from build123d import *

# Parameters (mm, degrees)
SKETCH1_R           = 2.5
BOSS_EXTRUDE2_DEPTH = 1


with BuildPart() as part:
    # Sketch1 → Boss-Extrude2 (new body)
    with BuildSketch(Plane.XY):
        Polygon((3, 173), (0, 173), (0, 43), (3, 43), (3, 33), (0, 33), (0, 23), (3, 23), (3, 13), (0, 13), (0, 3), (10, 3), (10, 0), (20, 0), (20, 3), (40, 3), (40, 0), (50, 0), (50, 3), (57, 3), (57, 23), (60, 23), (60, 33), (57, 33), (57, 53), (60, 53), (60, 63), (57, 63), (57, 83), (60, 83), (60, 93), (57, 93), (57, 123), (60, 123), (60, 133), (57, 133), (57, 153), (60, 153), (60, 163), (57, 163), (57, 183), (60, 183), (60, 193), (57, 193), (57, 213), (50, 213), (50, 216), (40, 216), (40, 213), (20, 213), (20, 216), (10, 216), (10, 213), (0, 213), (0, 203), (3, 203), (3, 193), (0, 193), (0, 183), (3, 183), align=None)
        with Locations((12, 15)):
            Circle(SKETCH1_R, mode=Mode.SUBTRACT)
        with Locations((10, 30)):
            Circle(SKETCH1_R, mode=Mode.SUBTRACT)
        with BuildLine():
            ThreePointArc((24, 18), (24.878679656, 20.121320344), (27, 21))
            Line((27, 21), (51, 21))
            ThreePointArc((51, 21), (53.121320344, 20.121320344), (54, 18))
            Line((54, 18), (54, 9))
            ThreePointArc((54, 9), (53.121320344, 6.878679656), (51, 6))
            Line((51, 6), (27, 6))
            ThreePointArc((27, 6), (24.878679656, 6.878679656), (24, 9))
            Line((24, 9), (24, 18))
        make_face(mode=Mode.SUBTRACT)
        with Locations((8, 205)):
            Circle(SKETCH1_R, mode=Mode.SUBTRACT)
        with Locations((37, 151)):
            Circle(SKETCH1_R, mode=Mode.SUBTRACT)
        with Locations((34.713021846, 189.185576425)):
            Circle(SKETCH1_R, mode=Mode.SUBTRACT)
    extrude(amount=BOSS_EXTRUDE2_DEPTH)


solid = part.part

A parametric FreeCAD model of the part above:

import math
import FreeCAD as App
import Part
import Sketcher
Q = App.Units.Quantity

doc = App.newDocument("Part")
params = doc.addObject("Spreadsheet::Sheet", "Params")
for row, (alias, value) in enumerate([
    ("sketch1_diameter", "5 mm"),
    ("sketch1_radius", "3 mm"),
    ("sketch1_width", "3 mm"),
    ("sketch1_width2", "10 mm"),
    ("sketch1_width3", "7 mm"),
    ("pad1_length", "1 mm"),
], start=1):
    params.set(f"A{row}", alias)
    params.set(f"B{row}", "=" + value)
    params.setAlias(f"B{row}", alias)

body = doc.addObject("PartDesign::Body", "Body")

# Sketch on XY plane
sketch1 = body.newObject("Sketcher::SketchObject", "Sketch")
sketch1.AttachmentSupport = (doc.getObject("XY_Plane"), [""])
sketch1.MapMode = "FlatFace"
sketch1.addGeometry([
    Part.LineSegment(App.Vector(3, 173, 0), App.Vector(0, 173, 0)),  # 0
    Part.LineSegment(App.Vector(0, 173, 0), App.Vector(0, 43, 0)),  # 1
    Part.LineSegment(App.Vector(0, 43, 0), App.Vector(3, 43, 0)),  # 2
    Part.LineSegment(App.Vector(3, 43, 0), App.Vector(3, 33, 0)),  # 3
    Part.LineSegment(App.Vector(3, 33, 0), App.Vector(0, 33, 0)),  # 4
    Part.LineSegment(App.Vector(0, 33, 0), App.Vector(0, 23, 0)),  # 5
    Part.LineSegment(App.Vector(0, 23, 0), App.Vector(3, 23, 0)),  # 6
    Part.LineSegment(App.Vector(3, 23, 0), App.Vector(3, 13, 0)),  # 7
    Part.LineSegment(App.Vector(3, 13, 0), App.Vector(0, 13, 0)),  # 8
    Part.LineSegment(App.Vector(0, 13, 0), App.Vector(0, 3, 0)),  # 9
    Part.LineSegment(App.Vector(0, 3, 0), App.Vector(10, 3, 0)),  # 10
    Part.LineSegment(App.Vector(10, 3, 0), App.Vector(10, 0, 0)),  # 11
    Part.LineSegment(App.Vector(10, 0, 0), App.Vector(20, 0, 0)),  # 12
    Part.LineSegment(App.Vector(20, 0, 0), App.Vector(20, 3, 0)),  # 13
    Part.LineSegment(App.Vector(20, 3, 0), App.Vector(40, 3, 0)),  # 14
    Part.LineSegment(App.Vector(40, 3, 0), App.Vector(40, 0, 0)),  # 15
    Part.LineSegment(App.Vector(40, 0, 0), App.Vector(50, 0, 0)),  # 16
    Part.LineSegment(App.Vector(50, 0, 0), App.Vector(50, 3, 0)),  # 17
    Part.LineSegment(App.Vector(50, 3, 0), App.Vector(57, 3, 0)),  # 18
    Part.LineSegment(App.Vector(57, 3, 0), App.Vector(57, 23, 0)),  # 19
    Part.LineSegment(App.Vector(57, 23, 0), App.Vector(60, 23, 0)),  # 20
    Part.LineSegment(App.Vector(60, 23, 0), App.Vector(60, 33, 0)),  # 21
    Part.LineSegment(App.Vector(60, 33, 0), App.Vector(57, 33, 0)),  # 22
    Part.LineSegment(App.Vector(57, 33, 0), App.Vector(57, 53, 0)),  # 23
    Part.LineSegment(App.Vector(57, 53, 0), App.Vector(60, 53, 0)),  # 24
    Part.LineSegment(App.Vector(60, 53, 0), App.Vector(60, 63, 0)),  # 25
    Part.LineSegment(App.Vector(60, 63, 0), App.Vector(57, 63, 0)),  # 26
    Part.LineSegment(App.Vector(57, 63, 0), App.Vector(57, 83, 0)),  # 27
    Part.LineSegment(App.Vector(57, 83, 0), App.Vector(60, 83, 0)),  # 28
    Part.LineSegment(App.Vector(60, 83, 0), App.Vector(60, 93, 0)),  # 29
    Part.LineSegment(App.Vector(60, 93, 0), App.Vector(57, 93, 0)),  # 30
    Part.LineSegment(App.Vector(57, 93, 0), App.Vector(57, 123, 0)),  # 31
    Part.LineSegment(App.Vector(57, 123, 0), App.Vector(60, 123, 0)),  # 32
    Part.LineSegment(App.Vector(60, 123, 0), App.Vector(60, 133, 0)),  # 33
    Part.LineSegment(App.Vector(60, 133, 0), App.Vector(57, 133, 0)),  # 34
    Part.LineSegment(App.Vector(57, 133, 0), App.Vector(57, 153, 0)),  # 35
    Part.LineSegment(App.Vector(57, 153, 0), App.Vector(60, 153, 0)),  # 36
    Part.LineSegment(App.Vector(60, 153, 0), App.Vector(60, 163, 0)),  # 37
    Part.LineSegment(App.Vector(60, 163, 0), App.Vector(57, 163, 0)),  # 38
    Part.LineSegment(App.Vector(57, 163, 0), App.Vector(57, 183, 0)),  # 39
    Part.LineSegment(App.Vector(57, 183, 0), App.Vector(60, 183, 0)),  # 40
    Part.LineSegment(App.Vector(60, 183, 0), App.Vector(60, 193, 0)),  # 41
    Part.LineSegment(App.Vector(60, 193, 0), App.Vector(57, 193, 0)),  # 42
    Part.LineSegment(App.Vector(57, 193, 0), App.Vector(57, 213, 0)),  # 43
    Part.LineSegment(App.Vector(57, 213, 0), App.Vector(50, 213, 0)),  # 44
    Part.LineSegment(App.Vector(50, 213, 0), App.Vector(50, 216, 0)),  # 45
    Part.LineSegment(App.Vector(50, 216, 0), App.Vector(40, 216, 0)),  # 46
    Part.LineSegment(App.Vector(40, 216, 0), App.Vector(40, 213, 0)),  # 47
    Part.LineSegment(App.Vector(40, 213, 0), App.Vector(20, 213, 0)),  # 48
    Part.LineSegment(App.Vector(20, 213, 0), App.Vector(20, 216, 0)),  # 49
    Part.LineSegment(App.Vector(20, 216, 0), App.Vector(10, 216, 0)),  # 50
    Part.LineSegment(App.Vector(10, 216, 0), App.Vector(10, 213, 0)),  # 51
    Part.LineSegment(App.Vector(10, 213, 0), App.Vector(0, 213, 0)),  # 52
    Part.LineSegment(App.Vector(0, 213, 0), App.Vector(0, 203, 0)),  # 53
    Part.LineSegment(App.Vector(0, 203, 0), App.Vector(3, 203, 0)),  # 54
    Part.LineSegment(App.Vector(3, 203, 0), App.Vector(3, 193, 0)),  # 55
    Part.LineSegment(App.Vector(3, 193, 0), App.Vector(0, 193, 0)),  # 56
    Part.LineSegment(App.Vector(0, 193, 0), App.Vector(0, 183, 0)),  # 57
    Part.LineSegment(App.Vector(0, 183, 0), App.Vector(3, 183, 0)),  # 58
    Part.LineSegment(App.Vector(3, 183, 0), App.Vector(3, 173, 0)),  # 59
    Part.Circle(App.Vector(10, 30, 0), App.Vector(0, 0, 1), 2.5),  # 60
    Part.Circle(App.Vector(12, 15, 0), App.Vector(0, 0, 1), 2.5),  # 61
    Part.LineSegment(App.Vector(24, 9, 0), App.Vector(24, 18, 0)),  # 62
    Part.ArcOfCircle(Part.Circle(App.Vector(27, 18, 0), App.Vector(0, 0, 1), 3), math.radians(90), math.radians(180)),  # 63
    Part.LineSegment(App.Vector(27, 21, 0), App.Vector(51, 21, 0)),  # 64
    Part.ArcOfCircle(Part.Circle(App.Vector(51, 18, 0), App.Vector(0, 0, 1), 3), math.radians(0), math.radians(90)),  # 65
    Part.LineSegment(App.Vector(54, 18, 0), App.Vector(54, 9, 0)),  # 66
    Part.ArcOfCircle(Part.Circle(App.Vector(51, 9, 0), App.Vector(0, 0, 1), 3), math.radians(-90), math.radians(0)),  # 67
    Part.LineSegment(App.Vector(51, 6, 0), App.Vector(27, 6, 0)),  # 68
    Part.ArcOfCircle(Part.Circle(App.Vector(27, 9, 0), App.Vector(0, 0, 1), 3), math.radians(180), math.radians(270)),  # 69
    Part.Circle(App.Vector(8, 205, 0), App.Vector(0, 0, 1), 2.5),  # 70
    Part.Circle(App.Vector(37, 151, 0), App.Vector(0, 0, 1), 2.5),  # 71
    Part.Circle(App.Vector(34.7, 189.2, 0), App.Vector(0, 0, 1), 2.5),  # 72
], False)
sketch1.addConstraint([
    Sketcher.Constraint("Coincident", 0, 2, 1, 1),
    Sketcher.Constraint("Coincident", 1, 2, 2, 1),
    Sketcher.Constraint("Coincident", 2, 2, 3, 1),
    Sketcher.Constraint("Coincident", 3, 2, 4, 1),
    Sketcher.Constraint("Coincident", 4, 2, 5, 1),
    Sketcher.Constraint("Coincident", 5, 2, 6, 1),
    Sketcher.Constraint("Coincident", 6, 2, 7, 1),
    Sketcher.Constraint("Coincident", 7, 2, 8, 1),
    Sketcher.Constraint("Coincident", 8, 2, 9, 1),
    Sketcher.Constraint("Coincident", 9, 2, 10, 1),
    Sketcher.Constraint("Coincident", 10, 2, 11, 1),
    Sketcher.Constraint("Coincident", 11, 2, 12, 1),
    Sketcher.Constraint("Coincident", 12, 2, 13, 1),
    Sketcher.Constraint("Coincident", 13, 2, 14, 1),
    Sketcher.Constraint("Coincident", 14, 2, 15, 1),
    Sketcher.Constraint("Coincident", 15, 2, 16, 1),
    Sketcher.Constraint("Coincident", 16, 2, 17, 1),
    Sketcher.Constraint("Coincident", 17, 2, 18, 1),
    Sketcher.Constraint("Coincident", 18, 2, 19, 1),
    Sketcher.Constraint("Coincident", 19, 2, 20, 1),
    Sketcher.Constraint("Coincident", 20, 2, 21, 1),
    Sketcher.Constraint("Coincident", 21, 2, 22, 1),
    Sketcher.Constraint("Coincident", 22, 2, 23, 1),
    Sketcher.Constraint("Coincident", 23, 2, 24, 1),
    Sketcher.Constraint("Coincident", 24, 2, 25, 1),
    Sketcher.Constraint("Coincident", 25, 2, 26, 1),
    Sketcher.Constraint("Coincident", 26, 2, 27, 1),
    Sketcher.Constraint("Coincident", 27, 2, 28, 1),
    Sketcher.Constraint("Coincident", 28, 2, 29, 1),
    Sketcher.Constraint("Coincident", 29, 2, 30, 1),
    Sketcher.Constraint("Coincident", 30, 2, 31, 1),
    Sketcher.Constraint("Coincident", 31, 2, 32, 1),
    Sketcher.Constraint("Coincident", 32, 2, 33, 1),
    Sketcher.Constraint("Coincident", 33, 2, 34, 1),
    Sketcher.Constraint("Coincident", 34, 2, 35, 1),
    Sketcher.Constraint("Coincident", 35, 2, 36, 1),
    Sketcher.Constraint("Coincident", 36, 2, 37, 1),
    Sketcher.Constraint("Coincident", 37, 2, 38, 1),
    Sketcher.Constraint("Coincident", 38, 2, 39, 1),
    Sketcher.Constraint("Coincident", 39, 2, 40, 1),
    Sketcher.Constraint("Coincident", 40, 2, 41, 1),
    Sketcher.Constraint("Coincident", 41, 2, 42, 1),
    Sketcher.Constraint("Coincident", 42, 2, 43, 1),
    Sketcher.Constraint("Coincident", 43, 2, 44, 1),
    Sketcher.Constraint("Coincident", 44, 2, 45, 1),
    Sketcher.Constraint("Coincident", 45, 2, 46, 1),
    Sketcher.Constraint("Coincident", 46, 2, 47, 1),
    Sketcher.Constraint("Coincident", 47, 2, 48, 1),
    Sketcher.Constraint("Coincident", 48, 2, 49, 1),
    Sketcher.Constraint("Coincident", 49, 2, 50, 1),
    Sketcher.Constraint("Coincident", 50, 2, 51, 1),
    Sketcher.Constraint("Coincident", 51, 2, 52, 1),
    Sketcher.Constraint("Coincident", 52, 2, 53, 1),
    Sketcher.Constraint("Coincident", 53, 2, 54, 1),
    Sketcher.Constraint("Coincident", 54, 2, 55, 1),
    Sketcher.Constraint("Coincident", 55, 2, 56, 1),
    Sketcher.Constraint("Coincident", 56, 2, 57, 1),
    Sketcher.Constraint("Coincident", 57, 2, 58, 1),
    Sketcher.Constraint("Coincident", 58, 2, 59, 1),
    Sketcher.Constraint("Coincident", 59, 2, 0, 1),
    Sketcher.Constraint("Tangent", 62, 2, 63, 2),
    Sketcher.Constraint("Tangent", 63, 1, 64, 1),
    Sketcher.Constraint("Tangent", 64, 2, 65, 2),
    Sketcher.Constraint("Tangent", 65, 1, 66, 1),
    Sketcher.Constraint("Tangent", 66, 2, 67, 2),
    Sketcher.Constraint("Tangent", 67, 1, 68, 1),
    Sketcher.Constraint("Tangent", 68, 2, 69, 2),
    Sketcher.Constraint("Tangent", 69, 1, 62, 1),
    Sketcher.Constraint("Horizontal", 0),
    Sketcher.Constraint("Vertical", 1),
    Sketcher.Constraint("Horizontal", 2),
    Sketcher.Constraint("Vertical", 3),
    Sketcher.Constraint("Horizontal", 4),
    Sketcher.Constraint("Vertical", 5),
    Sketcher.Constraint("Horizontal", 6),
    Sketcher.Constraint("Vertical", 7),
    Sketcher.Constraint("Horizontal", 8),
    Sketcher.Constraint("Vertical", 9),
    Sketcher.Constraint("Horizontal", 10),
    Sketcher.Constraint("Vertical", 11),
    Sketcher.Constraint("Horizontal", 12),
    Sketcher.Constraint("Vertical", 13),
    Sketcher.Constraint("Horizontal", 14),
    Sketcher.Constraint("Vertical", 15),
    Sketcher.Constraint("Horizontal", 16),
    Sketcher.Constraint("Vertical", 17),
    Sketcher.Constraint("Horizontal", 18),
    Sketcher.Constraint("Vertical", 19),
    Sketcher.Constraint("Horizontal", 20),
    Sketcher.Constraint("Vertical", 21),
    Sketcher.Constraint("Horizontal", 22),
    Sketcher.Constraint("Vertical", 23),
    Sketcher.Constraint("Horizontal", 24),
    Sketcher.Constraint("Vertical", 25),
    Sketcher.Constraint("Horizontal", 26),
    Sketcher.Constraint("Vertical", 27),
    Sketcher.Constraint("Horizontal", 28),
    Sketcher.Constraint("Vertical", 29),
    Sketcher.Constraint("Horizontal", 30),
    Sketcher.Constraint("Vertical", 31),
    Sketcher.Constraint("Horizontal", 32),
    Sketcher.Constraint("Vertical", 33),
    Sketcher.Constraint("Horizontal", 34),
    Sketcher.Constraint("Vertical", 35),
    Sketcher.Constraint("Horizontal", 36),
    Sketcher.Constraint("Vertical", 37),
    Sketcher.Constraint("Horizontal", 38),
    Sketcher.Constraint("Vertical", 39),
    Sketcher.Constraint("Horizontal", 40),
    Sketcher.Constraint("Vertical", 41),
    Sketcher.Constraint("Horizontal", 42),
    Sketcher.Constraint("Vertical", 43),
    Sketcher.Constraint("Horizontal", 44),
    Sketcher.Constraint("Vertical", 45),
    Sketcher.Constraint("Horizontal", 46),
    Sketcher.Constraint("Vertical", 47),
    Sketcher.Constraint("Horizontal", 48),
    Sketcher.Constraint("Vertical", 49),
    Sketcher.Constraint("Horizontal", 50),
    Sketcher.Constraint("Vertical", 51),
    Sketcher.Constraint("Horizontal", 52),
    Sketcher.Constraint("Vertical", 53),
    Sketcher.Constraint("Horizontal", 54),
    Sketcher.Constraint("Vertical", 55),
    Sketcher.Constraint("Horizontal", 56),
    Sketcher.Constraint("Vertical", 57),
    Sketcher.Constraint("Horizontal", 58),
    Sketcher.Constraint("Vertical", 59),
    Sketcher.Constraint("Vertical", 62),
    Sketcher.Constraint("Horizontal", 64),
    Sketcher.Constraint("Vertical", 66),
    Sketcher.Constraint("Horizontal", 68),
    Sketcher.Constraint("Equal", 60, 61),
    Sketcher.Constraint("Equal", 63, 65),
    Sketcher.Constraint("Equal", 65, 67),
    Sketcher.Constraint("Equal", 67, 69),
    Sketcher.Constraint("Equal", 61, 70),
    Sketcher.Constraint("Equal", 70, 71),
    Sketcher.Constraint("Equal", 71, 72),
    Sketcher.Constraint("PointOnObject", 0, 2, -2),
    Sketcher.Constraint("PointOnObject", 4, 2, -2),
    Sketcher.Constraint("PointOnObject", 8, 2, -2),
    Sketcher.Constraint("PointOnObject", 11, 2, -1),
    Sketcher.Constraint("PointOnObject", 15, 2, -1),
    Sketcher.Constraint("PointOnObject", 52, 2, -2),
    Sketcher.Constraint("PointOnObject", 56, 2, -2),
    Sketcher.Constraint("Horizontal", 10, 2, 13, 2),
    Sketcher.Constraint("Horizontal", 14, 2, 17, 2),
    Sketcher.Constraint("Horizontal", 6, 2, 19, 2),
    Sketcher.Constraint("Horizontal", 4, 2, 21, 2),
    Sketcher.Constraint("Horizontal", 44, 2, 47, 2),
    Sketcher.Constraint("Horizontal", 46, 2, 49, 2),
    Sketcher.Constraint("Horizontal", 48, 2, 51, 2),
    Sketcher.Constraint("Horizontal", 42, 2, 55, 2),
    Sketcher.Constraint("Horizontal", 40, 2, 57, 2),
    Sketcher.Constraint("Vertical", 3, 2, 6, 2),
    Sketcher.Constraint("Vertical", 60, 3, 10, 2),
    Sketcher.Constraint("Vertical", 19, 2, 22, 2),
    Sketcher.Constraint("Vertical", 21, 2, 24, 2),
    Sketcher.Constraint("Vertical", 23, 2, 26, 2),
    Sketcher.Constraint("Vertical", 25, 2, 28, 2),
    Sketcher.Constraint("Vertical", 27, 2, 30, 2),
    Sketcher.Constraint("Vertical", 29, 2, 32, 2),
    Sketcher.Constraint("Vertical", 31, 2, 34, 2),
    Sketcher.Constraint("Vertical", 33, 2, 36, 2),
    Sketcher.Constraint("Vertical", 35, 2, 38, 2),
    Sketcher.Constraint("Vertical", 37, 2, 40, 2),
    Sketcher.Constraint("Vertical", 39, 2, 42, 2),
    Sketcher.Constraint("Vertical", 17, 2, 44, 2),
    Sketcher.Constraint("Vertical", 15, 2, 46, 2),
    Sketcher.Constraint("Vertical", 13, 2, 48, 2),
    Sketcher.Constraint("Vertical", 11, 2, 50, 2),
    Sketcher.Constraint("Vertical", 7, 2, 54, 2),
    Sketcher.Constraint("Vertical", 55, 2, 58, 2),
    Sketcher.Constraint("Equal", 10, 12),
    Sketcher.Constraint("Equal", 12, 16),
    Sketcher.Constraint("Equal", 8, 20),
    Sketcher.Constraint("Equal", 52, 3),
    Sketcher.Constraint("Equal", 3, 5),
    Sketcher.Constraint("Equal", 5, 7),
    Sketcher.Constraint("Equal", 7, 9),
    Sketcher.Constraint("Equal", 58, 11),
    Sketcher.Constraint("Equal", 48, 19),
    Sketcher.Constraint("Equal", 19, 23),
    Sketcher.Constraint("Equal", 21, 25),
    Sketcher.Constraint("Equal", 23, 27),
    Sketcher.Constraint("Equal", 25, 29),
    Sketcher.Constraint("Equal", 29, 33),
    Sketcher.Constraint("Equal", 27, 35),
    Sketcher.Constraint("Equal", 33, 37),
    Sketcher.Constraint("Equal", 35, 39),
    Sketcher.Constraint("Equal", 37, 41),
    Sketcher.Constraint("Equal", 39, 43),
    Sketcher.Constraint("Equal", 17, 45),
    Sketcher.Constraint("Equal", 41, 53),
    Sketcher.Constraint("Equal", 57, 59),
    Sketcher.Constraint("Diameter", 60, Q("5 mm")),
    Sketcher.Constraint("Radius", 63, Q("3 mm")),
    Sketcher.Constraint("DistanceX", 0, 2, 0, 1, Q("3 mm")),
    Sketcher.Constraint("DistanceX", 10, 1, 10, 2, Q("10 mm")),
    Sketcher.Constraint("DistanceX", 18, 1, 18, 2, Q("7 mm")),
    Sketcher.Constraint("DistanceX", 64, 1, 64, 2, Q("24 mm")),
    Sketcher.Constraint("DistanceY", 1, 2, 1, 1, Q("130 mm")),
    Sketcher.Constraint("DistanceY", 62, 1, 62, 2, Q("9 mm")),
    Sketcher.Constraint("DistanceY", -1, 1, 60, 3, Q("30 mm")),
    Sketcher.Constraint("DistanceX", -1, 1, 61, 3, Q("12 mm")),
    Sketcher.Constraint("DistanceY", -1, 1, 61, 3, Q("15 mm")),
    Sketcher.Constraint("DistanceX", -1, 1, 63, 3, Q("27 mm")),
    Sketcher.Constraint("DistanceY", -1, 1, 63, 3, Q("18 mm")),
    Sketcher.Constraint("DistanceX", -1, 1, 70, 3, Q("8 mm")),
    Sketcher.Constraint("DistanceY", -1, 1, 70, 3, Q("205 mm")),
    Sketcher.Constraint("DistanceX", -1, 1, 71, 3, Q("37 mm")),
    Sketcher.Constraint("DistanceY", -1, 1, 71, 3, Q("151 mm")),
    Sketcher.Constraint("DistanceX", -1, 1, 72, 3, Q("34.713022 mm")),
    Sketcher.Constraint("DistanceY", -1, 1, 72, 3, Q("189.185576 mm")),
])
sketch1.setExpression("Constraints[196]", "Params.sketch1_diameter")
sketch1.setExpression("Constraints[197]", "Params.sketch1_radius")
sketch1.setExpression("Constraints[198]", "Params.sketch1_width")
sketch1.setExpression("Constraints[199]", "Params.sketch1_width2")
sketch1.setExpression("Constraints[200]", "Params.sketch1_width3")
pad1 = body.newObject("PartDesign::Pad", "Pad")
pad1.Profile = sketch1
pad1.setExpression("Length", "Params.pad1_length")

doc.recompute()
